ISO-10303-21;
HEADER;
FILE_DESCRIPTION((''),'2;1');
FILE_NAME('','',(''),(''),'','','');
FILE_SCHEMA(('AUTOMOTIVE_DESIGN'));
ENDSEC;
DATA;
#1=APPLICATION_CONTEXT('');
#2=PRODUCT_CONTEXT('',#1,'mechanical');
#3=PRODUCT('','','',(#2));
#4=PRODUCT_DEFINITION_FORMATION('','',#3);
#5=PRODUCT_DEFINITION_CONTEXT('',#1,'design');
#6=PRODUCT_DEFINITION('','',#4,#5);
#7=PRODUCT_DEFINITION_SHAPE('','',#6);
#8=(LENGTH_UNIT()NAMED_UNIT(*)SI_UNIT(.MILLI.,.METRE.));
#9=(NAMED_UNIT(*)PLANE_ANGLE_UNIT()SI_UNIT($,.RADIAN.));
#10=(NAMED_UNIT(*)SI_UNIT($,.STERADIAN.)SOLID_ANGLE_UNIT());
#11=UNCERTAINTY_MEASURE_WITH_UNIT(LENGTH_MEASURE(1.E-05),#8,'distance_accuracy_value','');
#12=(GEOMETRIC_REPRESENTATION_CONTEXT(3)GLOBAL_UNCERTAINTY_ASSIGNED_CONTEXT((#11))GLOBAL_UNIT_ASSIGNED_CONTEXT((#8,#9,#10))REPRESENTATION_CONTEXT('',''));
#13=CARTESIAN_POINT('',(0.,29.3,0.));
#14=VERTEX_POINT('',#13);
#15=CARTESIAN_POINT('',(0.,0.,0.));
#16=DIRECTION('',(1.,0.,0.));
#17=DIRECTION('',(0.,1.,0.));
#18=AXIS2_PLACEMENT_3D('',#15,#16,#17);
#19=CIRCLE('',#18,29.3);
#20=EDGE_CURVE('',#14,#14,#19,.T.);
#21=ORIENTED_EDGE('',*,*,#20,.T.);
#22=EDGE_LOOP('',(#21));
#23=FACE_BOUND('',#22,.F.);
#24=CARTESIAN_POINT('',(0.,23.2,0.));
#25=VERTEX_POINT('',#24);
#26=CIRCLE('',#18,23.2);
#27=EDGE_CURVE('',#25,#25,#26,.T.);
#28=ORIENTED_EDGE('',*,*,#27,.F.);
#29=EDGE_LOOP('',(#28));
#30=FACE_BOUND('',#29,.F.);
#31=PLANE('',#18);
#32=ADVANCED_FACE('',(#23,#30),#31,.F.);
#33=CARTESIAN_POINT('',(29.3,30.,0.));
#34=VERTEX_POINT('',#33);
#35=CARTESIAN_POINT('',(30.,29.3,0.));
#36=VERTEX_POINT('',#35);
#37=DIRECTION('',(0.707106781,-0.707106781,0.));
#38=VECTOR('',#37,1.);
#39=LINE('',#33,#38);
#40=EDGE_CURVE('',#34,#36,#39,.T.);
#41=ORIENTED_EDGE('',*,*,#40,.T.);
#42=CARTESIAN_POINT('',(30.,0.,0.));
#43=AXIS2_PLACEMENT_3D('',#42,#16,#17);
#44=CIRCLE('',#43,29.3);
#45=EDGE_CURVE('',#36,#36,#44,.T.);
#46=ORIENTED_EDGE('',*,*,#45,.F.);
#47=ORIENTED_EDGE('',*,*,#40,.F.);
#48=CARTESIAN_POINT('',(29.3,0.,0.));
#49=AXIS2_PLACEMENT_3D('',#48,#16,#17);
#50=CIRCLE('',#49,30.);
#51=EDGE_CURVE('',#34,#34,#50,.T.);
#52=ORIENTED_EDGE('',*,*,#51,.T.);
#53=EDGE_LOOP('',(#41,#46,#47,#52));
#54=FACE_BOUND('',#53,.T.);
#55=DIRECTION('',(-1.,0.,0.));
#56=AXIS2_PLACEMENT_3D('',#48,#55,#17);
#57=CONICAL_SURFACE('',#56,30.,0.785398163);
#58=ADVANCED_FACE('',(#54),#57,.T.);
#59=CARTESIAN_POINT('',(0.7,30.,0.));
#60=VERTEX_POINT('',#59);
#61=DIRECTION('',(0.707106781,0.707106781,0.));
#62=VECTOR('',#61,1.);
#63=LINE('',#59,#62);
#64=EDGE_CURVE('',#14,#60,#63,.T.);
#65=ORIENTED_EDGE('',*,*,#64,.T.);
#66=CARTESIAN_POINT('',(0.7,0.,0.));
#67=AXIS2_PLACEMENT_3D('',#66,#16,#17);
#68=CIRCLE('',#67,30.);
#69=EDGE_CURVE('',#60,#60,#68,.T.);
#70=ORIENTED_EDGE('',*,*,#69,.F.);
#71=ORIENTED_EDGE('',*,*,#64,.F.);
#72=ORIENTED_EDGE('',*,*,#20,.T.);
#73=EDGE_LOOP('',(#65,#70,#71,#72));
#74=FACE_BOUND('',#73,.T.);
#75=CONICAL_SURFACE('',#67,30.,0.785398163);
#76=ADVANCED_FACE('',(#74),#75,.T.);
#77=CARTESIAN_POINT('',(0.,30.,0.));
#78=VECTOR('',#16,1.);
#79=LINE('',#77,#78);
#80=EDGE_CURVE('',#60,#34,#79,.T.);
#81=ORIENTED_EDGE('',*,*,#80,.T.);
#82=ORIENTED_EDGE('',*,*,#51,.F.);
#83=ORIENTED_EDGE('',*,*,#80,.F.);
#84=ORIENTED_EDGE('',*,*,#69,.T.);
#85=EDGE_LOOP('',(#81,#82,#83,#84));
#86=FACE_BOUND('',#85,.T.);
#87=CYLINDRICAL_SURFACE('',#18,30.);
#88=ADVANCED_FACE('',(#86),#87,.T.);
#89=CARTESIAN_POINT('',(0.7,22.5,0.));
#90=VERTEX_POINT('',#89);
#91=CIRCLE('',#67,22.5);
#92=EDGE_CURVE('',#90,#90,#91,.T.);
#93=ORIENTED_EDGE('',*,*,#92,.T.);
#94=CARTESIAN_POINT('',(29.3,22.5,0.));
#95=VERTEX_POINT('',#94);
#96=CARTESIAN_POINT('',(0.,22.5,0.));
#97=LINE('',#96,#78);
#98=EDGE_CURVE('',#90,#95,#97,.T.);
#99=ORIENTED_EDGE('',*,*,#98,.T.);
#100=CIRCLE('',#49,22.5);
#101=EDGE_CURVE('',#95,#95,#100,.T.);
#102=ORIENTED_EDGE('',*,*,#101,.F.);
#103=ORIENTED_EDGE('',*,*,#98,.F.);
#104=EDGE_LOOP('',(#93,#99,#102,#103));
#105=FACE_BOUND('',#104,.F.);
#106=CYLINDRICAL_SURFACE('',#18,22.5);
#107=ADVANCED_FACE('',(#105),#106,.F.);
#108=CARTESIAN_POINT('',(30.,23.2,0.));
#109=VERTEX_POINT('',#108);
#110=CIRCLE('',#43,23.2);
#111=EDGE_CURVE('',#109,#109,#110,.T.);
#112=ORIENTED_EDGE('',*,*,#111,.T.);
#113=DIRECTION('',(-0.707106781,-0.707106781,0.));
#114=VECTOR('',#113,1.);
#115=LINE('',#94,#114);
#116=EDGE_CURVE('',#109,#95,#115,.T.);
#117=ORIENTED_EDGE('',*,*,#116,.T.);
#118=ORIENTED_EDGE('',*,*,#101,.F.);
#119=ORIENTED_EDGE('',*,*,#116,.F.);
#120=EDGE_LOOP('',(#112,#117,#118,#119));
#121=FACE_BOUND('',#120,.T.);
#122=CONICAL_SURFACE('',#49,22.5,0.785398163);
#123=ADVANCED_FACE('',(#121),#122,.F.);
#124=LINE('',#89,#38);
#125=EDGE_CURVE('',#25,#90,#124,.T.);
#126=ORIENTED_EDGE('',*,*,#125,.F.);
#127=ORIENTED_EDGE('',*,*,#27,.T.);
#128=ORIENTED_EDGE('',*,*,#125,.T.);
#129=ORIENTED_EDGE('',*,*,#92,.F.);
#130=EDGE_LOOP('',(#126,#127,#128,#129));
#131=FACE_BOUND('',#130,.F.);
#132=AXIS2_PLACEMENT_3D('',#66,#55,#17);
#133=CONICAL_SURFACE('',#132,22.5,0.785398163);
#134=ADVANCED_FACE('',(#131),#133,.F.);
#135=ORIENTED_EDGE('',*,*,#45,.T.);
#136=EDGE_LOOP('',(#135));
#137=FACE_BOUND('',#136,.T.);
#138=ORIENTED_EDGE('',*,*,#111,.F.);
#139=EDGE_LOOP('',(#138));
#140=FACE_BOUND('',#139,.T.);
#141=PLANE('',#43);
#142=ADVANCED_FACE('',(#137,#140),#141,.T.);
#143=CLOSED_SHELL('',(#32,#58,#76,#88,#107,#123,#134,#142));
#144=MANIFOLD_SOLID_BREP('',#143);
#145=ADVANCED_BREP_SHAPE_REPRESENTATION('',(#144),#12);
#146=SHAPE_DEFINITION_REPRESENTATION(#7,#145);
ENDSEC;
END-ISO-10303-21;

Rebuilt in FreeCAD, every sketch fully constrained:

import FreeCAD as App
import Part
import Sketcher
from FreeCAD import Vector


def edges_at(feature, points):
    """Names of the edges that pass closest to the given points."""
    edges = feature.Shape.Edges
    near = lambda p: min(range(len(edges)), key=lambda i: edges[i].distToShape(Part.Vertex(*p))[0])
    return sorted({f"Edge{near(p) + 1}" for p in points})


def add_polygon(sketch, points):
    """Adds a closed chain of lines whose ends are joined by coincident constraints."""
    first, n = sketch.GeometryCount, len(points)
    for a, b in zip(points, points[1:] + points[:1]):
        sketch.addGeometry(Part.LineSegment(App.Vector(*a, 0), App.Vector(*b, 0)), False)
    for i in range(n):
        sketch.addConstraint(Sketcher.Constraint("Coincident", first + i, 2, first + (i + 1) % n, 1))

doc = App.newDocument("Part")
body = doc.addObject("PartDesign::Body", "Body")

# Sketch on XY plane
sketch1 = body.newObject("Sketcher::SketchObject", "Sketch")
sketch1.AttachmentSupport = (doc.getObject("XY_Plane"), [""])
sketch1.MapMode = "FlatFace"
add_polygon(sketch1, [(0, 30), (0, 22), (30, 22), (30, 30)])  # lines 0-3
sketch1.addConstraint([
    Sketcher.Constraint("Vertical", 0),
    Sketcher.Constraint("Horizontal", 1),
    Sketcher.Constraint("Vertical", 2),
    Sketcher.Constraint("Horizontal", 3),
    Sketcher.Constraint("PointOnObject", 0, 2, -2),
    Sketcher.Constraint("DistanceX", 1, 1, 1, 2, 30.0),
    Sketcher.Constraint("DistanceY", -1, 1, 2, 2, 30.0),
    Sketcher.Constraint("DistanceY", 0, 2, 0, 1, 7.5),
])
revolution = body.newObject("PartDesign::Revolution", "Revolution")
revolution.Profile = sketch1
revolution.ReferenceAxis = (sketch1, ["H_Axis"])
revolution.Angle = 360
doc.recompute()

chamfer = body.newObject("PartDesign::Chamfer", "Chamfer")
chamfer.Base = (revolution, edges_at(revolution, [
    (30, -30, 0),
    (30, -22.5, 0),
    (0, -22.5, 0),
    (0, -30, 0),
]))
chamfer.Size = 0.7

doc.recompute()
